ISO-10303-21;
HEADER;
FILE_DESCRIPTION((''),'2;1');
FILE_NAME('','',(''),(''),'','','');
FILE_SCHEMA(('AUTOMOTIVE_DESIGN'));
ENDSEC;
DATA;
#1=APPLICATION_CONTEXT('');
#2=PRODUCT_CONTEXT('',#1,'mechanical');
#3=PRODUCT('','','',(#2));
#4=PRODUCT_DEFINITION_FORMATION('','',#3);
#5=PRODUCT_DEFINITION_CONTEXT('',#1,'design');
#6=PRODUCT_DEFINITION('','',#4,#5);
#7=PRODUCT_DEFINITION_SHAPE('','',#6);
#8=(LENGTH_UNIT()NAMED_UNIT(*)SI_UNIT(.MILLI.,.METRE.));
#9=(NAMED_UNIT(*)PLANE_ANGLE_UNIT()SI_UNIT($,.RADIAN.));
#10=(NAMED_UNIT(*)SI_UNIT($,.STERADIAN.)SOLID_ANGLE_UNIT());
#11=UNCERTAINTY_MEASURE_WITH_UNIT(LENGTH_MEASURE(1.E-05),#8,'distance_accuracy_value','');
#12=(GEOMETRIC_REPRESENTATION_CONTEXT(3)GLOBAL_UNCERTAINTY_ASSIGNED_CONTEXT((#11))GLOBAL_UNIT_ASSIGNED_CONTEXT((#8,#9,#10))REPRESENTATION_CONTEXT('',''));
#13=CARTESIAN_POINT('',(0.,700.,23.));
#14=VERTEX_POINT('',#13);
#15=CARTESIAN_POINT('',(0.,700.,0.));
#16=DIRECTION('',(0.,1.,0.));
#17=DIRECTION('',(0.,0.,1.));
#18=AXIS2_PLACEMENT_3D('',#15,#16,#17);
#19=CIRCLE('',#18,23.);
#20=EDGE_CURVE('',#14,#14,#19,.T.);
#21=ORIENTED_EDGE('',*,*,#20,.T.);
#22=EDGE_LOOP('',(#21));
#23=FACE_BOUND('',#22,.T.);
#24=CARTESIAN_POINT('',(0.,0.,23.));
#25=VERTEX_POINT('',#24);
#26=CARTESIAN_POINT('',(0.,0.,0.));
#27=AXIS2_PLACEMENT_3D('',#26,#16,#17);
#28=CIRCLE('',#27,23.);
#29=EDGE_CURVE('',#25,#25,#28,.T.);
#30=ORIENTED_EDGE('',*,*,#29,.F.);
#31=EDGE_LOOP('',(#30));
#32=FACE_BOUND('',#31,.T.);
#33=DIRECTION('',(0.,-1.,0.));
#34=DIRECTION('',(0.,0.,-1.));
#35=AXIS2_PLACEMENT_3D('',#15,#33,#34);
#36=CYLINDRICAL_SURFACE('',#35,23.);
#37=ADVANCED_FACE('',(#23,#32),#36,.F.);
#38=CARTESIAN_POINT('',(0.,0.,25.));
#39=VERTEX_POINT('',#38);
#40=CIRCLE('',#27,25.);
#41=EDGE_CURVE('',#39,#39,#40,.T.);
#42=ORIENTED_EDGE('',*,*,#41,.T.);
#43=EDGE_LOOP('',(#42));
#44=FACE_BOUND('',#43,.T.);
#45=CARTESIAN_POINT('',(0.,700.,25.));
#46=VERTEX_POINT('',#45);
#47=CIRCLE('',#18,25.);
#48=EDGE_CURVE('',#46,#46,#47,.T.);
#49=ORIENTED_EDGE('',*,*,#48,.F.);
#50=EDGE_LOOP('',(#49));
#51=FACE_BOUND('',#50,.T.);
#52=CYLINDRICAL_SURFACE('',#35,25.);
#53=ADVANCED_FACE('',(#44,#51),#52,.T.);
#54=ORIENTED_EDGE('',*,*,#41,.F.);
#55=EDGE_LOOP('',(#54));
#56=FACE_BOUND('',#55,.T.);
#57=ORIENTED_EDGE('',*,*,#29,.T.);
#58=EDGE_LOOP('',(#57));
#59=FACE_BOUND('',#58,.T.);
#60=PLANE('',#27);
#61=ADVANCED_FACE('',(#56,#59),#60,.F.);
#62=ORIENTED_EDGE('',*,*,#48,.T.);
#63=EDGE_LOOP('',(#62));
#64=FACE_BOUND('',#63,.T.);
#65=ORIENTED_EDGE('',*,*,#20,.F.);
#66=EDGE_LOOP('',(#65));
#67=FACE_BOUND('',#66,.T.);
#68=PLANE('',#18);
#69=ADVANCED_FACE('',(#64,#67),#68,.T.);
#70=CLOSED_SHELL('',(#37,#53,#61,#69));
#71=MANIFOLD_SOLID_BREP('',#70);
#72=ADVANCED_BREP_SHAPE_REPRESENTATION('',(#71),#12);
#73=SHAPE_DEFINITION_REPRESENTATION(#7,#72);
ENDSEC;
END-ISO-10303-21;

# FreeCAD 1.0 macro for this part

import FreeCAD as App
import Part
import Sketcher
from FreeCAD import Vector
Q = App.Units.Quantity

doc = App.newDocument("Part")
body = doc.addObject("PartDesign::Body", "Body")

# Sketch on XZ plane
sketch1 = doc.addObject("Sketcher::SketchObject", "Sketch")
body.addObject(sketch1)
sketch1.AttachmentSupport = (doc.XZ_Plane, [""])
sketch1.MapMode = "FlatFace"
sketch1.addGeometry(Part.Circle(Vector(0, 0, 0), Vector(0, 0, 1), 25), False)
sketch1.addGeometry(Part.Circle(Vector(0, 0, 0), Vector(0, 0, 1), 23), False)
sketch1.addConstraint(Sketcher.Constraint("Coincident", 0, 3, -1, 1))
sketch1.addConstraint(Sketcher.Constraint("Coincident", 1, 3, -1, 1))
sketch1.addConstraint(Sketcher.Constraint("Diameter", 0, Q("50 mm")))
sketch1.addConstraint(Sketcher.Constraint("Diameter", 1, Q("46 mm")))
pad1 = doc.addObject("PartDesign::Pad", "Pad")
body.addObject(pad1)
pad1.Profile = sketch1
pad1.Length = 700
pad1.Reversed = True

doc.recompute()
